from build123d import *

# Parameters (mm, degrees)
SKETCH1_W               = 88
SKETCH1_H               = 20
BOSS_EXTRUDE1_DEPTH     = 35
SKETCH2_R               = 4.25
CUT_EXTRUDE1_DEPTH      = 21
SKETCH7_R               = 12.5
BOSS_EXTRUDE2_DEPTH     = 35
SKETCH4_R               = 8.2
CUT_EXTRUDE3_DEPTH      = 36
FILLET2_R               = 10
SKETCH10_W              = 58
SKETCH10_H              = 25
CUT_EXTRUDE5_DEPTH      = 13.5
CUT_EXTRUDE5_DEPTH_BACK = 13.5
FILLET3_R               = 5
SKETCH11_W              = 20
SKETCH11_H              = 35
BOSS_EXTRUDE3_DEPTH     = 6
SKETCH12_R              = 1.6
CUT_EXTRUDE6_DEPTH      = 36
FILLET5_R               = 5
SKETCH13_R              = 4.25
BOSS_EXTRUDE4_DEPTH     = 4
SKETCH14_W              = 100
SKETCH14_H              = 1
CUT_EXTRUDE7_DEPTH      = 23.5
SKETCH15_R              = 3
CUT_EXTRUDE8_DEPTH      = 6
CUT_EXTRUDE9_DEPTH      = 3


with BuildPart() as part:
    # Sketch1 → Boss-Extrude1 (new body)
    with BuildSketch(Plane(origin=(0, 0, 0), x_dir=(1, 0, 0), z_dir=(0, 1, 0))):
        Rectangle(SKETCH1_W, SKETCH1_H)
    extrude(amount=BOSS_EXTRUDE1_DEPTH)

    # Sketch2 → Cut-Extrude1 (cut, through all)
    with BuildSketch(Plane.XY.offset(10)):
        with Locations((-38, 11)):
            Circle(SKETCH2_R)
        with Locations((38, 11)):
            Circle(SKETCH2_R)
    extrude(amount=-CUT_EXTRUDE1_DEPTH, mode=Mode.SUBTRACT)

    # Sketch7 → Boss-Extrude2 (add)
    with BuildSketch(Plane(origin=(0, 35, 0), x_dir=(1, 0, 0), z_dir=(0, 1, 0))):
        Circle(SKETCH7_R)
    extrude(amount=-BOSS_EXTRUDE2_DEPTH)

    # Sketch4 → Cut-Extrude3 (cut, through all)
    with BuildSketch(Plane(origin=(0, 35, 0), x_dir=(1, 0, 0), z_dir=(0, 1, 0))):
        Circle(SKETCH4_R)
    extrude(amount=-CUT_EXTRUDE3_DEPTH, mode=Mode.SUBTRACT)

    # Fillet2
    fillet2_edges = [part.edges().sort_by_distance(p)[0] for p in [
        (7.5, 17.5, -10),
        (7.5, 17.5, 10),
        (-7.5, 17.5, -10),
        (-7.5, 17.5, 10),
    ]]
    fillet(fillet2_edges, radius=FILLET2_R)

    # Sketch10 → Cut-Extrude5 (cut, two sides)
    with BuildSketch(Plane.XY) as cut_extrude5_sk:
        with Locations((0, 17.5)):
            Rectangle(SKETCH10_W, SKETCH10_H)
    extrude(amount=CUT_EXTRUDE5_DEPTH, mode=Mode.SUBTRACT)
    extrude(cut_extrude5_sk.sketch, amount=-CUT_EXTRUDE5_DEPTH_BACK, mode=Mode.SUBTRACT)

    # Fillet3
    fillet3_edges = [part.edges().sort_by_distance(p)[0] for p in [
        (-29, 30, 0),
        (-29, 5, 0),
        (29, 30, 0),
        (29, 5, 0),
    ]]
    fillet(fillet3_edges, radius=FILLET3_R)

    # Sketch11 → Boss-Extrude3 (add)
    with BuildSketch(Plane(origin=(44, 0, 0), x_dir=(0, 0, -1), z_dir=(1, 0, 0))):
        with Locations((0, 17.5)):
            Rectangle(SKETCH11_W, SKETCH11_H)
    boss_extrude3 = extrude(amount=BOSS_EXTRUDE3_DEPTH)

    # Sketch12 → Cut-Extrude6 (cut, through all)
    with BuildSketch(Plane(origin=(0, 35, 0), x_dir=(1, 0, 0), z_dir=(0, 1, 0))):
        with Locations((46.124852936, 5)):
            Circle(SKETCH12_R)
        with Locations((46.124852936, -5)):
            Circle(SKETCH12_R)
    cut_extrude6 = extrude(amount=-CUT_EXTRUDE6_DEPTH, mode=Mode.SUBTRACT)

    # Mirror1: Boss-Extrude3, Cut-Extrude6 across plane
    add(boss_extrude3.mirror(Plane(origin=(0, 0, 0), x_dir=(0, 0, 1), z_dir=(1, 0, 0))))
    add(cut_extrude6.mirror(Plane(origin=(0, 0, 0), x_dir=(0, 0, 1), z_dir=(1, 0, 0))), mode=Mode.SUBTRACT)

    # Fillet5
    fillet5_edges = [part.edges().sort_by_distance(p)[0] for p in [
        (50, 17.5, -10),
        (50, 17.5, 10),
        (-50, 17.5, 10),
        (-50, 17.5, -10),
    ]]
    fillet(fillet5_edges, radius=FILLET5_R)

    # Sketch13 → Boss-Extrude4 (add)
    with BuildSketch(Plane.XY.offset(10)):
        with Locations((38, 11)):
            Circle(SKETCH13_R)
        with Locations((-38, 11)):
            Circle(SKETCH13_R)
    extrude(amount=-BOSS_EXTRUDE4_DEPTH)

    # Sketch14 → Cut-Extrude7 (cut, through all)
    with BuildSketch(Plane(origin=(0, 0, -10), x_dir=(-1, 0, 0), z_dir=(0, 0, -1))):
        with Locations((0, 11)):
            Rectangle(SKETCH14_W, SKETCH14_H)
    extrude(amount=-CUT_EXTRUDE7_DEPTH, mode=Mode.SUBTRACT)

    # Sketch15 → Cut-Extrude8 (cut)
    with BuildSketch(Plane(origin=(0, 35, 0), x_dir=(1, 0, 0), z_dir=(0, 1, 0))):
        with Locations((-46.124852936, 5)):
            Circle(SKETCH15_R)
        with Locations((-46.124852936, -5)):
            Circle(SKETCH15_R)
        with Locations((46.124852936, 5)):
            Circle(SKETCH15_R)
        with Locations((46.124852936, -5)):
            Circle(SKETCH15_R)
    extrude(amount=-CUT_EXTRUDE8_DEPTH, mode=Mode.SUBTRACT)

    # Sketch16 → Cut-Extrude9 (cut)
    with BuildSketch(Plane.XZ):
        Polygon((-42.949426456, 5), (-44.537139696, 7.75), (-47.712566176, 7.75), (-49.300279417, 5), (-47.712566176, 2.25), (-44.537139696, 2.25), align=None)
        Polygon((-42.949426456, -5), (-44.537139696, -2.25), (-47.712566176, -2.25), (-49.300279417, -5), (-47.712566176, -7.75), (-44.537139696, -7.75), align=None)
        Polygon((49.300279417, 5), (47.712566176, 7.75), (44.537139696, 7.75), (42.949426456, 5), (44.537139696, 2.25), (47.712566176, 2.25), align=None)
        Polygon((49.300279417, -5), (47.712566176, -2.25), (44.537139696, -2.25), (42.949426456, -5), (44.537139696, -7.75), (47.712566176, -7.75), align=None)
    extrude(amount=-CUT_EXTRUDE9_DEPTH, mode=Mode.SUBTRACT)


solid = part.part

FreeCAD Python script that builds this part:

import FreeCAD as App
import Part
import Sketcher

V = App.Vector
Q = App.Units.Quantity


def edges_at(feature, points):
    """Names of the edges that pass closest to the given points."""
    edges = feature.Shape.Edges
    near = lambda p: min(range(len(edges)), key=lambda i: edges[i].distToShape(Part.Vertex(*p))[0])
    return sorted({f"Edge{near(p) + 1}" for p in points})


def add_polygon(sketch, points):
    """Adds a closed chain of lines whose ends are joined by coincident constraints."""
    first, n = sketch.GeometryCount, len(points)
    for a, b in zip(points, points[1:] + points[:1]):
        sketch.addGeometry(Part.LineSegment(App.Vector(*a, 0), App.Vector(*b, 0)), False)
    for i in range(n):
        sketch.addConstraint(Sketcher.Constraint("Coincident", first + i, 2, first + (i + 1) % n, 1))

doc = App.newDocument("Part")
params = doc.addObject("Spreadsheet::Sheet", "Params")
for row, (alias, value) in enumerate([
    ("sketch1_width", "88 mm"),
    ("sketch1_height", "20 mm"),
    ("pad1_length", "35 mm"),
    ("sketch2_diameter", "8.5 mm"),
    ("sketch3_diameter", "25 mm"),
    ("pad2_length", "35 mm"),
    ("sketch4_diameter", "16.4 mm"),
    ("fillet_radius", "10 mm"),
    ("sketch5_width", "58 mm"),
    ("sketch5_height", "25 mm"),
    ("fillet2_radius", "5 mm"),
    ("sketch6_width", "35 mm"),
    ("sketch6_height", "20 mm"),
    ("pad3_length", "6 mm"),
    ("sketch7_diameter", "3.2 mm"),
    ("fillet3_radius", "5 mm"),
    ("sketch8_diameter", "8.5 mm"),
    ("pad4_length", "4 mm"),
    ("sketch9_width", "100 mm"),
    ("sketch9_height", "1 mm"),
    ("sketch10_diameter", "6 mm"),
    ("pocket6_length", "6 mm"),
    ("pocket7_length", "3 mm"),
], start=1):
    params.set(f"A{row}", alias)
    params.set(f"B{row}", "=" + value)
    params.setAlias(f"B{row}", alias)

body = doc.addObject("PartDesign::Body", "Body")
body.AllowCompound = True

# Sketch on XZ plane
sketch1 = body.newObject("Sketcher::SketchObject", "Sketch")
sketch1.AttachmentSupport = (doc.getObject("XZ_Plane"), [""])
sketch1.MapMode = "FlatFace"
add_polygon(sketch1, [(-44, -10), (-44, 10), (44, 10), (44, -10)])  # lines 0-3
sketch1.addConstraint([
    Sketcher.Constraint("Vertical", 0),
    Sketcher.Constraint("Horizontal", 1),
    Sketcher.Constraint("Vertical", 2),
    Sketcher.Constraint("Horizontal", 3),
    Sketcher.Constraint("Symmetric", 0, 2, 2, 2, -1, 1),
    Sketcher.Constraint("DistanceX", 1, 1, 1, 2, Q("88 mm")),
    Sketcher.Constraint("DistanceY", 0, 1, 0, 2, Q("20 mm")),
])
sketch1.setExpression("Constraints[9]", "Params.sketch1_width")
sketch1.setExpression("Constraints[10]", "Params.sketch1_height")
pad1 = body.newObject("PartDesign::Pad", "Pad")
pad1.Profile = sketch1
pad1.setExpression("Length", "Params.pad1_length")
pad1.Reversed = True

# Sketch on XY plane
sketch2 = body.newObject("Sketcher::SketchObject", "Sketch001")
sketch2.AttachmentSupport = (doc.getObject("XY_Plane"), [""])
sketch2.MapMode = "FlatFace"
sketch2.AttachmentOffset = App.Placement(V(0, 0, 10), App.Rotation())
sketch2.addGeometry([
    Part.Circle(V(-38, 11, 0), V(0, 0, 1), 4.2),
    Part.Circle(V(38, 11, 0), V(0, 0, 1), 4.2),
], False)
sketch2.addConstraint([
    Sketcher.Constraint("Equal", 0, 1),
    Sketcher.Constraint("Symmetric", 0, 3, 1, 3, -2),
    Sketcher.Constraint("Diameter", 0, Q("8.5 mm")),
    Sketcher.Constraint("DistanceX", 0, 3, -1, 1, Q("38 mm")),
    Sketcher.Constraint("DistanceY", -1, 1, 0, 3, Q("11 mm")),
])
sketch2.setExpression("Constraints[2]", "Params.sketch2_diameter")
pocket1 = body.newObject("PartDesign::Pocket", "Pocket")
pocket1.Profile = sketch2
pocket1.Type = "ThroughAll"

# Sketch on XZ plane
sketch3 = body.newObject("Sketcher::SketchObject", "Sketch002")
sketch3.AttachmentSupport = (doc.getObject("XZ_Plane"), [""])
sketch3.MapMode = "FlatFace"
sketch3.AttachmentOffset = App.Placement(V(0, 0, -35), App.Rotation())
sketch3.addGeometry(Part.Circle(V(0, 0, 0), V(0, 0, 1), 12), False)
sketch3.addConstraint([
    Sketcher.Constraint("Coincident", 0, 3, -1, 1),
    Sketcher.Constraint("Diameter", 0, Q("25 mm")),
])
sketch3.setExpression("Constraints[1]", "Params.sketch3_diameter")
pad2 = body.newObject("PartDesign::Pad", "Pad001")
pad2.Profile = sketch3
pad2.setExpression("Length", "Params.pad2_length")

# Sketch on XZ plane
sketch4 = body.newObject("Sketcher::SketchObject", "Sketch003")
sketch4.AttachmentSupport = (doc.getObject("XZ_Plane"), [""])
sketch4.MapMode = "FlatFace"
sketch4.AttachmentOffset = App.Placement(V(0, 0, -35), App.Rotation())
sketch4.addGeometry(Part.Circle(V(0, 0, 0), V(0, 0, 1), 8), False)
sketch4.addConstraint([
    Sketcher.Constraint("Coincident", 0, 3, -1, 1),
    Sketcher.Constraint("Diameter", 0, Q("16.4 mm")),
])
sketch4.setExpression("Constraints[1]", "Params.sketch4_diameter")
pocket2 = body.newObject("PartDesign::Pocket", "Pocket001")
pocket2.Profile = sketch4
pocket2.Type = "ThroughAll"
pocket2.Reversed = True
doc.recompute()

fillet = body.newObject("PartDesign::Fillet", "Fillet")
fillet.Base = (pocket2, edges_at(pocket2, [
    (7.5, 17.5, -10),
    (7.5, 17.5, 10),
    (-7.5, 17.5, -10),
    (-7.5, 17.5, 10),
]))
fillet.setExpression("Radius", "Params.fillet_radius")

# Sketch on XY plane
sketch5 = body.newObject("Sketcher::SketchObject", "Sketch004")
sketch5.AttachmentSupport = (doc.getObject("XY_Plane"), [""])
sketch5.MapMode = "FlatFace"
add_polygon(sketch5, [(-29, 30), (-29, 5), (29, 5), (29, 30)])  # lines 0-3
sketch5.addConstraint([
    Sketcher.Constraint("Vertical", 0),
    Sketcher.Constraint("Horizontal", 1),
    Sketcher.Constraint("Vertical", 2),
    Sketcher.Constraint("Horizontal", 3),
    Sketcher.Constraint("DistanceX", 1, 1, 1, 2, Q("58 mm")),
    Sketcher.Constraint("DistanceY", 0, 2, 0, 1, Q("25 mm")),
    Sketcher.Constraint("DistanceX", 0, 2, -1, 1, Q("29 mm")),
    Sketcher.Constraint("DistanceY", -1, 1, 0, 2, Q("5 mm")),
])
sketch5.setExpression("Constraints[8]", "Params.sketch5_width")
sketch5.setExpression("Constraints[9]", "Params.sketch5_height")
pocket3 = body.newObject("PartDesign::Pocket", "Pocket002")
pocket3.Profile = sketch5
pocket3.Type = "ThroughAll"
pocket3.Midplane = True
doc.recompute()

fillet2 = body.newObject("PartDesign::Fillet", "Fillet001")
fillet2.Base = (pocket3, edges_at(pocket3, [
    (-29, 30, 0),
    (-29, 5, 0),
    (29, 30, 0),
    (29, 5, 0),
]))
fillet2.setExpression("Radius", "Params.fillet2_radius")

# Sketch on YZ plane
sketch6 = body.newObject("Sketcher::SketchObject", "Sketch005")
sketch6.AttachmentSupport = (doc.getObject("YZ_Plane"), [""])
sketch6.MapMode = "FlatFace"
sketch6.AttachmentOffset = App.Placement(V(0, 0, 44), App.Rotation())
add_polygon(sketch6, [(35, 10), (0, 10), (0, -10), (35, -10)])  # lines 0-3
sketch6.addConstraint([
    Sketcher.Constraint("Horizontal", 0),
    Sketcher.Constraint("Vertical", 1),
    Sketcher.Constraint("Horizontal", 2),
    Sketcher.Constraint("Vertical", 3),
    Sketcher.Constraint("Symmetric", 0, 2, 1, 2, -1, 1),
    Sketcher.Constraint("DistanceX", 0, 2, 0, 1, Q("35 mm")),
    Sketcher.Constraint("DistanceY", 1, 2, 1, 1, Q("20 mm")),
])
sketch6.setExpression("Constraints[9]", "Params.sketch6_width")
sketch6.setExpression("Constraints[10]", "Params.sketch6_height")
pad3 = body.newObject("PartDesign::Pad", "Pad002")
pad3.Profile = sketch6
pad3.setExpression("Length", "Params.pad3_length")

# Sketch on XZ plane
sketch7 = body.newObject("Sketcher::SketchObject", "Sketch006")
sketch7.AttachmentSupport = (doc.getObject("XZ_Plane"), [""])
sketch7.MapMode = "FlatFace"
sketch7.AttachmentOffset = App.Placement(V(0, 0, -35), App.Rotation())
sketch7.addGeometry([
    Part.Circle(V(46.1, -5, 0), V(0, 0, 1), 1.6),
    Part.Circle(V(46.1, 5, 0), V(0, 0, 1), 1.6),
], False)
sketch7.addConstraint([
    Sketcher.Constraint("Equal", 0, 1),
    Sketcher.Constraint("Symmetric", 0, 3, 1, 3, -1),
    Sketcher.Constraint("Diameter", 0, Q("3.2 mm")),
    Sketcher.Constraint("DistanceY", 0, 3, -1, 1, Q("5 mm")),
    Sketcher.Constraint("DistanceX", -1, 1, 0, 3, Q("46.124853 mm")),
])
sketch7.setExpression("Constraints[2]", "Params.sketch7_diameter")
pocket4 = body.newObject("PartDesign::Pocket", "Pocket003")
pocket4.Profile = sketch7
pocket4.Type = "ThroughAll"
pocket4.Reversed = True
doc.recompute()

mirrored = body.newObject("PartDesign::Mirrored", "Mirrored")
mirrored.Originals = [pad3, pocket4]
mirrored.MirrorPlane = (doc.getObject("YZ_Plane"), [""])
body.Tip = mirrored
doc.recompute()

fillet3 = body.newObject("PartDesign::Fillet", "Fillet002")
fillet3.Base = (mirrored, edges_at(mirrored, [
    (50, 17.5, -10),
    (50, 17.5, 10),
    (-50, 17.5, 10),
    (-50, 17.5, -10),
]))
fillet3.setExpression("Radius", "Params.fillet3_radius")

# Sketch on XY plane
sketch8 = body.newObject("Sketcher::SketchObject", "Sketch007")
sketch8.AttachmentSupport = (doc.getObject("XY_Plane"), [""])
sketch8.MapMode = "FlatFace"
sketch8.AttachmentOffset = App.Placement(V(0, 0, 10), App.Rotation())
sketch8.addGeometry([
    Part.Circle(V(38, 11, 0), V(0, 0, 1), 4.2),
    Part.Circle(V(-38, 11, 0), V(0, 0, 1), 4.2),
], False)
sketch8.addConstraint([
    Sketcher.Constraint("Equal", 0, 1),
    Sketcher.Constraint("Symmetric", 0, 3, 1, 3, -2),
    Sketcher.Constraint("Diameter", 0, Q("8.5 mm")),
    Sketcher.Constraint("DistanceX", -1, 1, 0, 3, Q("38 mm")),
    Sketcher.Constraint("DistanceY", -1, 1, 0, 3, Q("11 mm")),
])
sketch8.setExpression("Constraints[2]", "Params.sketch8_diameter")
pad4 = body.newObject("PartDesign::Pad", "Pad003")
pad4.Profile = sketch8
pad4.setExpression("Length", "Params.pad4_length")
pad4.Reversed = True

# Sketch on XY plane
sketch9 = body.newObject("Sketcher::SketchObject", "Sketch008")
sketch9.AttachmentSupport = (doc.getObject("XY_Plane"), [""])
sketch9.MapMode = "FlatFace"
sketch9.AttachmentOffset = App.Placement(V(0, 0, -10), App.Rotation())
add_polygon(sketch9, [(50, 11.5), (50, 10.5), (-50, 10.5), (-50, 11.5)])  # lines 0-3
sketch9.addConstraint([
    Sketcher.Constraint("Vertical", 0),
    Sketcher.Constraint("Horizontal", 1),
    Sketcher.Constraint("Vertical", 2),
    Sketcher.Constraint("Horizontal", 3),
    Sketcher.Constraint("DistanceX", 1, 2, 1, 1, Q("100 mm")),
    Sketcher.Constraint("DistanceY", 0, 2, 0, 1, Q("1 mm")),
    Sketcher.Constraint("DistanceX", -1, 1, 0, 2, Q("50 mm")),
    Sketcher.Constraint("DistanceY", -1, 1, 0, 2, Q("10.5 mm")),
])
sketch9.setExpression("Constraints[8]", "Params.sketch9_width")
sketch9.setExpression("Constraints[9]", "Params.sketch9_height")
pocket5 = body.newObject("PartDesign::Pocket", "Pocket004")
pocket5.Profile = sketch9
pocket5.Type = "ThroughAll"
pocket5.Reversed = True

# Sketch on XZ plane
sketch10 = body.newObject("Sketcher::SketchObject", "Sketch009")
sketch10.AttachmentSupport = (doc.getObject("XZ_Plane"), [""])
sketch10.MapMode = "FlatFace"
sketch10.AttachmentOffset = App.Placement(V(0, 0, -35), App.Rotation())
sketch10.addGeometry([
    Part.Circle(V(-46.1, -5, 0), V(0, 0, 1), 3),
    Part.Circle(V(-46.1, 5, 0), V(0, 0, 1), 3),
    Part.Circle(V(46.1, -5, 0), V(0, 0, 1), 3),
    Part.Circle(V(46.1, 5, 0), V(0, 0, 1), 3),
], False)
sketch10.addConstraint([
    Sketcher.Constraint("Equal", 0, 1),
    Sketcher.Constraint("Equal", 1, 2),
    Sketcher.Constraint("Equal", 2, 3),
    Sketcher.Constraint("Symmetric", 1, 3, 2, 3, -1, 1),
    Sketcher.Constraint("Symmetric", 0, 3, 3, 3, -1, 1),
    Sketcher.Constraint("Symmetric", 0, 3, 2, 3, -2),
    Sketcher.Constraint("Diameter", 0, Q("6 mm")),
    Sketcher.Constraint("DistanceY", 0, 3, -1, 1, Q("5 mm")),
    Sketcher.Constraint("DistanceX", 0, 3, -1, 1, Q("46.124853 mm")),
])
sketch10.setExpression("Constraints[6]", "Params.sketch10_diameter")
pocket6 = body.newObject("PartDesign::Pocket", "Pocket005")
pocket6.Profile = sketch10
pocket6.setExpression("Length", "Params.pocket6_length")
pocket6.Reversed = True

# Sketch on XZ plane
sketch11 = body.newObject("Sketcher::SketchObject", "Sketch010")
sketch11.AttachmentSupport = (doc.getObject("XZ_Plane"), [""])
sketch11.MapMode = "FlatFace"
add_polygon(sketch11, [(-42.9, 5), (-44.5, 7.8), (-47.7, 7.8), (-49.3, 5), (-47.7, 2.2), (-44.5, 2.2)])  # lines 0-5
add_polygon(sketch11, [(-42.9, -5), (-44.5, -2.2), (-47.7, -2.2), (-49.3, -5), (-47.7, -7.8), (-44.5, -7.8)])  # lines 6-11
add_polygon(sketch11, [(49.3, 5), (47.7, 7.8), (44.5, 7.8), (42.9, 5), (44.5, 2.2), (47.7, 2.2)])  # lines 12-17
add_polygon(sketch11, [(49.3, -5), (47.7, -2.2), (44.5, -2.2), (42.9, -5), (44.5, -7.8), (47.7, -7.8)])  # lines 18-23
sketch11.addConstraint([
    Sketcher.Constraint("Horizontal", 1),
    Sketcher.Constraint("Horizontal", 4),
    Sketcher.Constraint("Horizontal", 7),
    Sketcher.Constraint("Horizontal", 10),
    Sketcher.Constraint("Horizontal", 13),
    Sketcher.Constraint("Horizontal", 16),
    Sketcher.Constraint("Horizontal", 19),
    Sketcher.Constraint("Horizontal", 22),
    Sketcher.Constraint("Symmetric", 9, 2, 12, 2, -1, 1),
    Sketcher.Constraint("Symmetric", 11, 2, 14, 2, -1, 1),
    Sketcher.Constraint("Symmetric", 6, 2, 15, 2, -1, 1),
    Sketcher.Constraint("Symmetric", 8, 2, 17, 2, -1, 1),
    Sketcher.Constraint("Symmetric", 3, 2, 18, 2, -1, 1),
    Sketcher.Constraint("Symmetric", 5, 2, 20, 2, -1, 1),
    Sketcher.Constraint("Symmetric", 0, 2, 21, 2, -1, 1),
    Sketcher.Constraint("Symmetric", 2, 2, 23, 2, -1, 1),
    Sketcher.Constraint("Symmetric", 1, 2, 12, 2, -2),
    Sketcher.Constraint("Symmetric", 5, 2, 14, 2, -2),
    Sketcher.Constraint("Symmetric", 4, 2, 15, 2, -2),
    Sketcher.Constraint("Symmetric", 2, 2, 17, 2, -2),
    Sketcher.Constraint("Parallel", 0, 3),
    Sketcher.Constraint("Parallel", 2, 5),
    Sketcher.Constraint("Parallel", 3, 6),
    Sketcher.Constraint("Parallel", 5, 8),
    Sketcher.Constraint("Parallel", 8, 11),
    Sketcher.Constraint("Parallel", 11, 14),
    Sketcher.Constraint("Parallel", 14, 17),
    Sketcher.Constraint("Parallel", 17, 20),
    Sketcher.Constraint("Parallel", 20, 23),
    Sketcher.Constraint("Horizontal", 2, 2, 5, 2),
    Sketcher.Constraint("Vertical", 1, 2, 3, 2),
    Sketcher.Constraint("Angle", 0, Q("120 deg")),
    Sketcher.Constraint("DistanceY", -1, 1, 2, 2, Q("5 mm")),
    Sketcher.Constraint("DistanceY", 3, 2, 1, 2, Q("5.5 mm")),
    Sketcher.Constraint("DistanceX", 1, 2, 1, 1, Q("3.175426 mm")),
    Sketcher.Constraint("DistanceX", 0, 2, -1, 1, Q("44.53714 mm")),
])
pocket7 = body.newObject("PartDesign::Pocket", "Pocket006")
pocket7.Profile = sketch11
pocket7.setExpression("Length", "Params.pocket7_length")

doc.recompute()
